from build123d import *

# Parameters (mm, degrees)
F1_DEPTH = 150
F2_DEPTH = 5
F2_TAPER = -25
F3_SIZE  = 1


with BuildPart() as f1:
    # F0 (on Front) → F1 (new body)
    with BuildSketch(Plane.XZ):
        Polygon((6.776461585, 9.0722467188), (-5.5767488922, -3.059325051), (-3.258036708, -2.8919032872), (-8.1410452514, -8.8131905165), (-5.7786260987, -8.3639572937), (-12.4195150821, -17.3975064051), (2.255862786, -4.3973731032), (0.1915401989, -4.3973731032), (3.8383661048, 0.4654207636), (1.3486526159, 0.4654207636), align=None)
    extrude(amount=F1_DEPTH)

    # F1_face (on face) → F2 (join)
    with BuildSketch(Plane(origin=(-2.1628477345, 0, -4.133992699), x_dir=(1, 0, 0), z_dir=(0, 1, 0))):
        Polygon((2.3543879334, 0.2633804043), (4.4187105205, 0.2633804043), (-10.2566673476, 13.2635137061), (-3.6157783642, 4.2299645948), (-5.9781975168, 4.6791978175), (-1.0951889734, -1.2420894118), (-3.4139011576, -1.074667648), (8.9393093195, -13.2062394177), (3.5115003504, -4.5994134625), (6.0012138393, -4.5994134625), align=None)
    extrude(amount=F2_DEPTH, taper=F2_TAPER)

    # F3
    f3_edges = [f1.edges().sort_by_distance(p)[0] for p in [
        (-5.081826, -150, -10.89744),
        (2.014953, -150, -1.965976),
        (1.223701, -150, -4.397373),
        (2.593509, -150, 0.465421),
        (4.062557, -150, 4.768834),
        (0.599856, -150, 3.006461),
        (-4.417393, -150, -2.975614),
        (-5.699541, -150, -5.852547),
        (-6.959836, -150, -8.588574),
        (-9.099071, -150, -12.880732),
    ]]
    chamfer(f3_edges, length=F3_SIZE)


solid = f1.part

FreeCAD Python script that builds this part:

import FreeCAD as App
import Part
import Sketcher
from FreeCAD import Vector


def edges_at(feature, points):
    """Names of the edges that pass closest to the given points."""
    edges = feature.Shape.Edges
    near = lambda p: min(range(len(edges)), key=lambda i: edges[i].distToShape(Part.Vertex(*p))[0])
    return sorted({f"Edge{near(p) + 1}" for p in points})


def add_polygon(sketch, points):
    """Adds a closed chain of lines whose ends are joined by coincident constraints."""
    first, n = sketch.GeometryCount, len(points)
    for a, b in zip(points, points[1:] + points[:1]):
        sketch.addGeometry(Part.LineSegment(App.Vector(*a, 0), App.Vector(*b, 0)), False)
    for i in range(n):
        sketch.addConstraint(Sketcher.Constraint("Coincident", first + i, 2, first + (i + 1) % n, 1))

doc = App.newDocument("Part")
body = doc.addObject("PartDesign::Body", "Body")

sketch1 = body.newObject("Sketcher::SketchObject", "Sketch")
sketch1.AttachmentSupport = (doc.getObject("XZ_Plane"), [""])
sketch1.MapMode = "FlatFace"
add_polygon(sketch1, [(6.776462, 9.072247), (-5.576749, -3.059325), (-3.258037, -2.891903), (-8.141045, -8.813191), (-5.778626, -8.363957), (-12.419515, -17.397506), (2.255863, -4.397373), (0.19154, -4.397373), (3.838366, 0.465421), (1.348653, 0.465421)])
sketch1.addConstraint([
    Sketcher.Constraint("Horizontal", 6),
    Sketcher.Constraint("Horizontal", 8),
    Sketcher.Constraint("DistanceX", 1, 2, 5, 2, 5.513899),
    Sketcher.Constraint("DistanceX", 0, 2, 8, 2, 6.925402),
    Sketcher.Constraint("DistanceX", 5, 2, 9, 2, 4.520599),
    Sketcher.Constraint("Distance", 1, 2.324749),
    Sketcher.Constraint("Distance", 5, 19.605361),
    Sketcher.Constraint("Distance", 7, 6.078331),
    Sketcher.Constraint("Distance", 9, 10.17539),
    Sketcher.Constraint("DistanceX", 6, 2, 6, 1, 2.064323),
    Sketcher.Constraint("DistanceX", 8, 2, 8, 1, 2.489713),
    Sketcher.Constraint("DistanceX", 0, 2, -1, 1, 5.576749),
    Sketcher.Constraint("DistanceY", 2, 2, -1, 1, 8.813191),
    Sketcher.Constraint("DistanceX", -1, 1, 6, 2, 0.19154),
    Sketcher.Constraint("DistanceY", -1, 1, 7, 2, 0.465421),
    Sketcher.Constraint("DistanceX", 2, 2, 1, 2, 4.883009),
    Sketcher.Constraint("DistanceX", 2, 2, 3, 2, 2.362419),
    Sketcher.Constraint("DistanceX", 4, 2, 2, 2, 4.27847),
    Sketcher.Constraint("DistanceY", 4, 2, 3, 2, 9.033549),
    Sketcher.Constraint("DistanceY", 4, 2, 0, 2, 14.338181),
])
pad1 = body.newObject("PartDesign::Pad", "Pad")
pad1.Profile = sketch1
pad1.Length = 150

sketch2 = body.newObject("Sketcher::SketchObject", "Sketch001")
sketch2.AttachmentSupport = (doc.getObject("XZ_Plane"), [""])
sketch2.MapMode = "FlatFace"
add_polygon(sketch2, [(0.19154, -4.397373), (2.255863, -4.397373), (-12.419515, -17.397506), (-5.778626, -8.363957), (-8.141045, -8.813191), (-3.258037, -2.891903), (-5.576749, -3.059325), (6.776462, 9.072247), (1.348653, 0.465421), (3.838366, 0.465421)])
sketch2.addConstraint([
    Sketcher.Constraint("Horizontal", 0),
    Sketcher.Constraint("Horizontal", 8),
    Sketcher.Constraint("DistanceX", 4, 2, 0, 2, 5.513899),
    Sketcher.Constraint("DistanceX", 0, 2, 6, 2, 4.520599),
    Sketcher.Constraint("DistanceX", 5, 2, 7, 2, 6.925402),
    Sketcher.Constraint("Distance", 1, 19.605361),
    Sketcher.Constraint("Distance", 5, 2.324749),
    Sketcher.Constraint("Distance", 7, 10.17539),
    Sketcher.Constraint("Distance", 9, 6.078331),
    Sketcher.Constraint("DistanceX", 0, 1, 0, 2, 2.064323),
    Sketcher.Constraint("DistanceX", 8, 1, 8, 2, 2.489713),
    Sketcher.Constraint("DistanceY", 3, 2, -1, 1, 8.813191),
    Sketcher.Constraint("DistanceX", 5, 2, -1, 1, 5.576749),
    Sketcher.Constraint("DistanceX", -1, 1, 6, 2, 6.776462),
    Sketcher.Constraint("DistanceY", -1, 1, 7, 2, 0.465421),
    Sketcher.Constraint("DistanceX", 2, 2, 0, 2, 8.034489),
    Sketcher.Constraint("DistanceX", 1, 2, 2, 2, 6.640889),
    Sketcher.Constraint("DistanceY", 1, 2, 2, 2, 9.033549),
    Sketcher.Constraint("DistanceX", 3, 2, 2, 2, 2.362419),
    Sketcher.Constraint("DistanceY", 0, 2, 4, 2, 1.50547),
])
pad2 = body.newObject("PartDesign::Pad", "Pad001")
pad2.Profile = sketch2
pad2.Length = 5
pad2.Reversed = True
pad2.TaperAngle = 25
doc.recompute()

chamfer = body.newObject("PartDesign::Chamfer", "Chamfer")
chamfer.Base = (pad2, edges_at(pad2, [
    (-5.082, -150, -10.897),
    (2.015, -150, -1.966),
    (1.224, -150, -4.397),
    (2.594, -150, 0.465),
    (4.063, -150, 4.769),
    (0.6, -150, 3.006),
    (-4.417, -150, -2.976),
    (-5.7, -150, -5.853),
    (-6.96, -150, -8.589),
    (-9.099, -150, -12.881),
]))
chamfer.Size = 1

doc.recompute()
